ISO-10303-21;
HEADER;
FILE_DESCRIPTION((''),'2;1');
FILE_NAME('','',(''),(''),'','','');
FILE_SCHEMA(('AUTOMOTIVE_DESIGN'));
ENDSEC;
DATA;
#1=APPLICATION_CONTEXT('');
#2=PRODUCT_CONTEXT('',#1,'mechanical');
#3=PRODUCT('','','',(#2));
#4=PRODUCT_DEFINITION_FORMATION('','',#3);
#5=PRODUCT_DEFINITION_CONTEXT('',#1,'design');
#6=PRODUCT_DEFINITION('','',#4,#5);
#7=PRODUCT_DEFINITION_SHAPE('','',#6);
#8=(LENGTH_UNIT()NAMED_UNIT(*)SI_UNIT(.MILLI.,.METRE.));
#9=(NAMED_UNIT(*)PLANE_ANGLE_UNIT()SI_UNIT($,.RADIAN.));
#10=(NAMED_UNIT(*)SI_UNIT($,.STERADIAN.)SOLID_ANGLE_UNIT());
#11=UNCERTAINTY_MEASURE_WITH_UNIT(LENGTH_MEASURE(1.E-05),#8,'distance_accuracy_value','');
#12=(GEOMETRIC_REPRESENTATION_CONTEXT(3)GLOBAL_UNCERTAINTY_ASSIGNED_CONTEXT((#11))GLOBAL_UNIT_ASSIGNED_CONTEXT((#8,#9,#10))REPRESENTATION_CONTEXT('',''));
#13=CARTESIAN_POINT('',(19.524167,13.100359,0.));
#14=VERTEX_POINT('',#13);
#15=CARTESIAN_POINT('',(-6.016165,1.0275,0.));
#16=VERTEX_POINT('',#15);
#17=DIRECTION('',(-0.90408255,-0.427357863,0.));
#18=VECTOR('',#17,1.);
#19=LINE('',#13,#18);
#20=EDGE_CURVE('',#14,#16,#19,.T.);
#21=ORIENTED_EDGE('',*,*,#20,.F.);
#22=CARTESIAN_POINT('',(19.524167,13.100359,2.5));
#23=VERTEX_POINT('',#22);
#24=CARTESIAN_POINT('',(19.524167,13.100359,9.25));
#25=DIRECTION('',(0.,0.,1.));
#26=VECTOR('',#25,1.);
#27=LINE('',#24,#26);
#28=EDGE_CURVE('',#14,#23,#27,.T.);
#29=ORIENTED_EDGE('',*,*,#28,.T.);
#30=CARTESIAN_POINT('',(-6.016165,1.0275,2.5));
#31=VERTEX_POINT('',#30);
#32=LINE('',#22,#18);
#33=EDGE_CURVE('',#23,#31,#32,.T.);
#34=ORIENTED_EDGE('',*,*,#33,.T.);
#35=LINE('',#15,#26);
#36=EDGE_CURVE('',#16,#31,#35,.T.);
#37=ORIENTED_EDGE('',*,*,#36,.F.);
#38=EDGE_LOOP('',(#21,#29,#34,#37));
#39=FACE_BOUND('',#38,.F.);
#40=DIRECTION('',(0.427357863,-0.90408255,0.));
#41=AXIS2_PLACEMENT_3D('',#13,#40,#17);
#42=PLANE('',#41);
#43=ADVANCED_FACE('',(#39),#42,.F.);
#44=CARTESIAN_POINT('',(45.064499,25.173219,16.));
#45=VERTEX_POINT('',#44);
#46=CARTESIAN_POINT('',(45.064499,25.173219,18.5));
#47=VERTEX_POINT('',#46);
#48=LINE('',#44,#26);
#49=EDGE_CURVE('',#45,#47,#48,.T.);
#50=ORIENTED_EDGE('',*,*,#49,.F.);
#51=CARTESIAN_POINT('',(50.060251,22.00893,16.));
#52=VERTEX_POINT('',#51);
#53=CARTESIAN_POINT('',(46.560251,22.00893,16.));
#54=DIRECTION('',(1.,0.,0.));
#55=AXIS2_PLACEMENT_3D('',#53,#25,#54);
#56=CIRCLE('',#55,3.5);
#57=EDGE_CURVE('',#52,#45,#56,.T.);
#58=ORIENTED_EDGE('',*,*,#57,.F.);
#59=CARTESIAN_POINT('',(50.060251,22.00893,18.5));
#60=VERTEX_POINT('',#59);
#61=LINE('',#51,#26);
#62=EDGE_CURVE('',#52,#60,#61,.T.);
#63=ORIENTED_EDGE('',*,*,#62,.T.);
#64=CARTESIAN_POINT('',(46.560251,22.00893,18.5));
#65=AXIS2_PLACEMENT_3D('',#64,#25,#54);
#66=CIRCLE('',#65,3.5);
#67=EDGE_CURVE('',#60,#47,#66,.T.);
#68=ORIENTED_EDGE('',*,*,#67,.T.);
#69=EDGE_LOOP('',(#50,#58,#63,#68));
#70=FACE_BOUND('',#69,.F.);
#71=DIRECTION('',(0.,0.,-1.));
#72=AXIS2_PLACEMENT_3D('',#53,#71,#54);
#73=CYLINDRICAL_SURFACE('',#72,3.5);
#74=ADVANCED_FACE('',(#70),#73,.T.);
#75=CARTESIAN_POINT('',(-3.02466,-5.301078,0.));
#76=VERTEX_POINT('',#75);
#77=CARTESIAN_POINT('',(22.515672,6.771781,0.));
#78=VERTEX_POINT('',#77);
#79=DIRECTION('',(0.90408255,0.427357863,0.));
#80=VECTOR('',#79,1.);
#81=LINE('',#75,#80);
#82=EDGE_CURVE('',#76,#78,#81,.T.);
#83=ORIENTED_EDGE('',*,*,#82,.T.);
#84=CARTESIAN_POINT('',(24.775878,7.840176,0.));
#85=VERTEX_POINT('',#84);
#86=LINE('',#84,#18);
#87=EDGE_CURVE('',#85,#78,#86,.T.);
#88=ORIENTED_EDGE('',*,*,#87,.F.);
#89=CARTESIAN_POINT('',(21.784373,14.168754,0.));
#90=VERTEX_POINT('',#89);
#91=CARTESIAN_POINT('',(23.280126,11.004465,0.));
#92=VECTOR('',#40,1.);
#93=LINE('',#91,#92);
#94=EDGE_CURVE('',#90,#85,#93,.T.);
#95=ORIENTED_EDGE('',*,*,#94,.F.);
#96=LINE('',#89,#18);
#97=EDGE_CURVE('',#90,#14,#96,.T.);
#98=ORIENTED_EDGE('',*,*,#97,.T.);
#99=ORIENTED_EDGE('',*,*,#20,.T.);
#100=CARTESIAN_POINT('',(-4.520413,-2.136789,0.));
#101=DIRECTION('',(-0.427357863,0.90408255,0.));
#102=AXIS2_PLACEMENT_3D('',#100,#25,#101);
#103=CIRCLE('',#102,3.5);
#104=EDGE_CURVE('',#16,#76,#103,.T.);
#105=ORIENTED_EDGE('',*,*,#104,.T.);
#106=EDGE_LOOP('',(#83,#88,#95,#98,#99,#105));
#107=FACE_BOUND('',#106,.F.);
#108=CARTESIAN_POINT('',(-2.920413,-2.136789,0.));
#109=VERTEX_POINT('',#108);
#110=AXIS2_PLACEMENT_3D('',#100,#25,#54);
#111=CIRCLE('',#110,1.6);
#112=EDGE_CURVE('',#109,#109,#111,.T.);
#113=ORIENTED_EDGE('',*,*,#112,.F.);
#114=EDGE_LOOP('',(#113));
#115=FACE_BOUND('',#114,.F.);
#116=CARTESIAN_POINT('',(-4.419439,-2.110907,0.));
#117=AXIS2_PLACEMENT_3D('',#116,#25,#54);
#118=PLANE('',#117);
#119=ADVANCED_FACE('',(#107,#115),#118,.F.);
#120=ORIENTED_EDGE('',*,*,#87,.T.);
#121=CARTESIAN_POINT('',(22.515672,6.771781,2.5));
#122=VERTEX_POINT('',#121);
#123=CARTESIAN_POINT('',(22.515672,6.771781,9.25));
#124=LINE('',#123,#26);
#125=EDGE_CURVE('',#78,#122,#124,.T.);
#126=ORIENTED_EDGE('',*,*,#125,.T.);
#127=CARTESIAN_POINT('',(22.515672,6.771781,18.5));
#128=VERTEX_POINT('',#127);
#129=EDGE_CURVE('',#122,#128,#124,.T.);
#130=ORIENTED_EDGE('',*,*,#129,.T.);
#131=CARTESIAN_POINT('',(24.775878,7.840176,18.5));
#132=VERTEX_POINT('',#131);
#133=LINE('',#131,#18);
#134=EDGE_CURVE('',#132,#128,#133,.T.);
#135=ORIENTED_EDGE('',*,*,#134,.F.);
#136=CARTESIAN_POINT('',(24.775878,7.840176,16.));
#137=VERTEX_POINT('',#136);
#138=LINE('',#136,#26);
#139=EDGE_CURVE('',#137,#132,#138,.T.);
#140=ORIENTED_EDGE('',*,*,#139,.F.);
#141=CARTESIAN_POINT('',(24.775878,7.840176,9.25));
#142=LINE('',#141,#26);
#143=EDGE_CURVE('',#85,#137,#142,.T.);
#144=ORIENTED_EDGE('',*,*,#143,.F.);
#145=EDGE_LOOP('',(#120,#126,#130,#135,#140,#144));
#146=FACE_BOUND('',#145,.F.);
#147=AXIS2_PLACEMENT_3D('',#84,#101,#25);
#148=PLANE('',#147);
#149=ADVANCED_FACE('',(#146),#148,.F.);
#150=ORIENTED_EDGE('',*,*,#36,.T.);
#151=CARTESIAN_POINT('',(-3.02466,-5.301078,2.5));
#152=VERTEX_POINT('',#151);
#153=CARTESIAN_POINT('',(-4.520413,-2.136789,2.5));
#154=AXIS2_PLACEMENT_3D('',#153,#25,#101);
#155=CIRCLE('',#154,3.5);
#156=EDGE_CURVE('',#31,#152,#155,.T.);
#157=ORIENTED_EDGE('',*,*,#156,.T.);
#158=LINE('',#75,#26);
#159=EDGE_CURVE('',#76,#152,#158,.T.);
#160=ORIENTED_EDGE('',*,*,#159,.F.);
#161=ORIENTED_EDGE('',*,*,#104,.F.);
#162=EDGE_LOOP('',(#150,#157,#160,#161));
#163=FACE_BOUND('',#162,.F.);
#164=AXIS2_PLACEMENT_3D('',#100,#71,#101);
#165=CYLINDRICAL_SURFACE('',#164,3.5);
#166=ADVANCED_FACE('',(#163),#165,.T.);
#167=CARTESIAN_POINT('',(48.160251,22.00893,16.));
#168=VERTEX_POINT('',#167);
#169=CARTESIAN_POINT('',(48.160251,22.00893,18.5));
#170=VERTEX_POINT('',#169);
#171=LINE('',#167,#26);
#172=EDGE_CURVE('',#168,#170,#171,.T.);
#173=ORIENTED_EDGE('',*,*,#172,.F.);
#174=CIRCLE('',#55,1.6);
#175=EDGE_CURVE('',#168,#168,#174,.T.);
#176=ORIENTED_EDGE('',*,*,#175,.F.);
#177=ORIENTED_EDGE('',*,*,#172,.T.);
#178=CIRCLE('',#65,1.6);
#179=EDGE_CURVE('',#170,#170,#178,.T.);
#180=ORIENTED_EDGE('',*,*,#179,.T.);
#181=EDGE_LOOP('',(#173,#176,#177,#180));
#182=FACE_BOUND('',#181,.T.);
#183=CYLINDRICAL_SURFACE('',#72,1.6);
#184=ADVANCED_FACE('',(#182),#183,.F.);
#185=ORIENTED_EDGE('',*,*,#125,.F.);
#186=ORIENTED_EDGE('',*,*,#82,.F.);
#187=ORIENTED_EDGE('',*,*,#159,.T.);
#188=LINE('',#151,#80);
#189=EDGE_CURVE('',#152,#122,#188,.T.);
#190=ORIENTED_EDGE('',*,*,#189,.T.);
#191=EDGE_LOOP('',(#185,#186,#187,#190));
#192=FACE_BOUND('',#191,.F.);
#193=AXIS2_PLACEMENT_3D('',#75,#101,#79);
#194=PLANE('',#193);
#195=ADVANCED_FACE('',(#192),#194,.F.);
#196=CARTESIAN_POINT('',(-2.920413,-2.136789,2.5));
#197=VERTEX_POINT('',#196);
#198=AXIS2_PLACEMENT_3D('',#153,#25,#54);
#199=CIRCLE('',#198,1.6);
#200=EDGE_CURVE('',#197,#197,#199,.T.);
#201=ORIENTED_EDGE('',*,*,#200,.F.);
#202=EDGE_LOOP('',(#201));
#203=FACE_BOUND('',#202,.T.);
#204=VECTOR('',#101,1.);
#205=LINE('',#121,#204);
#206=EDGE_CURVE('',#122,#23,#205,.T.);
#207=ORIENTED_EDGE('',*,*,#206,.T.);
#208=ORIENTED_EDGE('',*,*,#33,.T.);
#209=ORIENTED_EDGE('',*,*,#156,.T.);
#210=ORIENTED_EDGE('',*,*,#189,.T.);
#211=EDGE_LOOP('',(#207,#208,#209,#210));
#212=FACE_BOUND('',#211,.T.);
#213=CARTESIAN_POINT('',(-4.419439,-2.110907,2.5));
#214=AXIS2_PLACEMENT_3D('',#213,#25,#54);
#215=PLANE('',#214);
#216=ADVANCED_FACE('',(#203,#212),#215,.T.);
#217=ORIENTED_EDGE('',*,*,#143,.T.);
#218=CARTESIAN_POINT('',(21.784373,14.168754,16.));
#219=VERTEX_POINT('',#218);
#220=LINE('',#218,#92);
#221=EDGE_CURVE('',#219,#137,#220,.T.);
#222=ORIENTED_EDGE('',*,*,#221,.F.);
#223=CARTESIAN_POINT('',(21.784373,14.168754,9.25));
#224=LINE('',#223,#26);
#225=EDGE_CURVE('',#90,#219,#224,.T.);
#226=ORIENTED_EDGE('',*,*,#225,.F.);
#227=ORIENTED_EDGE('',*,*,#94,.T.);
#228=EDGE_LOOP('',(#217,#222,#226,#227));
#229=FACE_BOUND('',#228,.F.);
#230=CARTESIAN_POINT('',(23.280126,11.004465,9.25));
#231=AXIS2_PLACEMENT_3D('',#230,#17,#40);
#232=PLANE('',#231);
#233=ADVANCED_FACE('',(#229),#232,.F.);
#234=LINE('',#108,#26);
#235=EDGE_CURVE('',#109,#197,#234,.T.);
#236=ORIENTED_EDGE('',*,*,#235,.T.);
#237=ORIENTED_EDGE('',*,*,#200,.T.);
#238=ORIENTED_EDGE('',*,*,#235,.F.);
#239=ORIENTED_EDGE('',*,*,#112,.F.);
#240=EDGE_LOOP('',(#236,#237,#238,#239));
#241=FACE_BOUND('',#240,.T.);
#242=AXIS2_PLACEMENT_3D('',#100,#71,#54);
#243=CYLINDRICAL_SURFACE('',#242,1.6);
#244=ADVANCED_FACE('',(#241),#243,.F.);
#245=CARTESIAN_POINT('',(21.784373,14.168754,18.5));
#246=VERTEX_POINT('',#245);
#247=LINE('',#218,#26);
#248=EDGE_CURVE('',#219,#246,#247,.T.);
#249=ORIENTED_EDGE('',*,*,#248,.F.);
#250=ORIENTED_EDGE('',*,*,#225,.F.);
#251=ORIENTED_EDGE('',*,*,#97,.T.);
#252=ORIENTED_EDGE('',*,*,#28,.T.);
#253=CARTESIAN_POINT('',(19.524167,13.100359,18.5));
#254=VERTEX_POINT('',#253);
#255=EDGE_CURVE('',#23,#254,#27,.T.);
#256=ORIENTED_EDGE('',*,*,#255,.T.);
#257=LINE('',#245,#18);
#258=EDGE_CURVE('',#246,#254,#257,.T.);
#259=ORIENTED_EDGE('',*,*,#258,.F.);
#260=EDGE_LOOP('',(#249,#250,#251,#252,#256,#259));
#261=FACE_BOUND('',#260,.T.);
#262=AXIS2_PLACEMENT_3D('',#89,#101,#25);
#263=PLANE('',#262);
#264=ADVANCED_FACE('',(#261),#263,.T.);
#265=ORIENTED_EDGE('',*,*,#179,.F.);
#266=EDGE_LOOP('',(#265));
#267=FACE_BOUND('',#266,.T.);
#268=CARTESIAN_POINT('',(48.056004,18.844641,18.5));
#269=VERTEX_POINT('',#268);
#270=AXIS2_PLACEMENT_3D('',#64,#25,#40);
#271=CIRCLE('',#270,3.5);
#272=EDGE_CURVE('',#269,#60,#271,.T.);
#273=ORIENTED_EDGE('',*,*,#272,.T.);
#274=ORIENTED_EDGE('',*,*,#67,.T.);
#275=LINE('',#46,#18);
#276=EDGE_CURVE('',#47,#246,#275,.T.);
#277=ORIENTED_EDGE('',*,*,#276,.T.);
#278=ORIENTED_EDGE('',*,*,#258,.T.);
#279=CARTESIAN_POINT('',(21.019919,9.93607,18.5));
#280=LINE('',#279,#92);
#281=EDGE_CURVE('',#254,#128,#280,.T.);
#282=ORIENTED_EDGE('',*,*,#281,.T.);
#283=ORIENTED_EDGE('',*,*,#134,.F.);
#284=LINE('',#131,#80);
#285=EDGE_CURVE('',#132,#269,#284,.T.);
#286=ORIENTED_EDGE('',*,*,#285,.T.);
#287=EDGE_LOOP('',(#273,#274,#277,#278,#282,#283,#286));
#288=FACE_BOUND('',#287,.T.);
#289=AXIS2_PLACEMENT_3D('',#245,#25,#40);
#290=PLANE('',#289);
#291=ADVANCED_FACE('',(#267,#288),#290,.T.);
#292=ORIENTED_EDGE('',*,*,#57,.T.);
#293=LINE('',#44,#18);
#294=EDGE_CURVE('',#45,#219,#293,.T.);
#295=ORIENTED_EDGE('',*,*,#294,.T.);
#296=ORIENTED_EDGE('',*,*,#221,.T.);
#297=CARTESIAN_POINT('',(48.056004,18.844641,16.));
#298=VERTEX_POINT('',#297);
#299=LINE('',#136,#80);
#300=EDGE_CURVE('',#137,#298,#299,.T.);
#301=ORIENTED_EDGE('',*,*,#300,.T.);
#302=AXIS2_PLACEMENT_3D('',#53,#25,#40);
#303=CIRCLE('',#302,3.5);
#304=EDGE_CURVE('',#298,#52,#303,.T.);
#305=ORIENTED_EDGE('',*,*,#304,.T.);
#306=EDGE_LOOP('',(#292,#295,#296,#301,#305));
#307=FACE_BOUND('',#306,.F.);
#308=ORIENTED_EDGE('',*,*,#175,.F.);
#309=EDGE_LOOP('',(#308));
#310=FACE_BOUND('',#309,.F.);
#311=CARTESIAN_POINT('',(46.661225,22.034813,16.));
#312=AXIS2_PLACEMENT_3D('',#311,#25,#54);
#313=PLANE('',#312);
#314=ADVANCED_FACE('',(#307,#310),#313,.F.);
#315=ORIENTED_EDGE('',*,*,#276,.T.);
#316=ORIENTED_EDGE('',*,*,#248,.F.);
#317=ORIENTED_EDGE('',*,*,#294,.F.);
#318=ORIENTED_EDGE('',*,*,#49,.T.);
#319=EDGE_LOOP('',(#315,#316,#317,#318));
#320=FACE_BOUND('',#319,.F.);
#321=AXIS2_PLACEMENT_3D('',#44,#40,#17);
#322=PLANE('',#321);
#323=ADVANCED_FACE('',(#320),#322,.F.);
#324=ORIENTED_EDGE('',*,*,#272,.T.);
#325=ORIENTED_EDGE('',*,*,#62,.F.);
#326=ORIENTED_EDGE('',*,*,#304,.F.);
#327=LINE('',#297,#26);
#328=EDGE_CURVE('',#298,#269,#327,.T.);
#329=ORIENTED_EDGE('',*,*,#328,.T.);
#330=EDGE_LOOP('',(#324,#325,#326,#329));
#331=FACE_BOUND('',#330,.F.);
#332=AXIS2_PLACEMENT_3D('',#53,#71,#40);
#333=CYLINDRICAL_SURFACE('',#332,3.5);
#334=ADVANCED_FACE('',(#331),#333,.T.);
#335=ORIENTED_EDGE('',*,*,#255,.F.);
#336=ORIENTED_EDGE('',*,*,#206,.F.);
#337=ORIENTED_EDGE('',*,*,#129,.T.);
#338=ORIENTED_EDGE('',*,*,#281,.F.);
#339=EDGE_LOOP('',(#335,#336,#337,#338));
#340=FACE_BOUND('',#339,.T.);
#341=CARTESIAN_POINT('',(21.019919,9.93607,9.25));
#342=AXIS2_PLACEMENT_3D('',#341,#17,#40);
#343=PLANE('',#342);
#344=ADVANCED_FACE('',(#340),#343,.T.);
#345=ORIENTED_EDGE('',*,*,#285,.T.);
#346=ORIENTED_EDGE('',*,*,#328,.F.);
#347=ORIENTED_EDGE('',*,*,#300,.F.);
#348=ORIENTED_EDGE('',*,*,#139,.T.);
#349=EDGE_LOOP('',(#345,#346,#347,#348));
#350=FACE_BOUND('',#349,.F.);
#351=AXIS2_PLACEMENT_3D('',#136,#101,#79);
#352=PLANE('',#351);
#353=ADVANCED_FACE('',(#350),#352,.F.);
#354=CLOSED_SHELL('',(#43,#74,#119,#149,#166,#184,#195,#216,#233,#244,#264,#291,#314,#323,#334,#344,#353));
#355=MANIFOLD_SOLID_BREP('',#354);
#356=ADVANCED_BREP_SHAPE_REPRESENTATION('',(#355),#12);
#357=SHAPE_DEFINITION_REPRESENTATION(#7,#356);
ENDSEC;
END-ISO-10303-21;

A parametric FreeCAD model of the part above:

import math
import FreeCAD as App
import Part
import Sketcher
from FreeCAD import Vector
Q = App.Units.Quantity


def add_polygon(sketch, points):
    """Adds a closed chain of lines whose ends are joined by coincident constraints."""
    first, n = sketch.GeometryCount, len(points)
    for a, b in zip(points, points[1:] + points[:1]):
        sketch.addGeometry(Part.LineSegment(App.Vector(*a, 0), App.Vector(*b, 0)), False)
    for i in range(n):
        sketch.addConstraint(Sketcher.Constraint("Coincident", first + i, 2, first + (i + 1) % n, 1))

doc = App.newDocument("Part")
body = doc.addObject("PartDesign::Body", "Body")

# Sketch on XY plane
sketch1 = body.newObject("Sketcher::SketchObject", "Sketch")
sketch1.AttachmentSupport = (doc.getObject("XY_Plane"), [""])
sketch1.MapMode = "FlatFace"
sketch1.AttachmentOffset = App.Placement(Vector(0, 0, 16), App.Rotation())
sketch1.addGeometry(Part.ArcOfCircle(Part.Circle(Vector(46.6, 22, 0), Vector(0, 0, 1), 3.5), math.radians(-65), math.radians(0)), False)
sketch1.addGeometry(Part.ArcOfCircle(Part.Circle(Vector(46.6, 22, 0), Vector(0, 0, 1), 3.5), math.radians(0), math.radians(115)), False)
sketch1.addGeometry(Part.LineSegment(Vector(45.1, 25.2, 0), Vector(21.8, 14.2, 0)), False)
sketch1.addGeometry(Part.LineSegment(Vector(21.8, 14.2, 0), Vector(24.8, 7.8, 0)), False)
sketch1.addGeometry(Part.LineSegment(Vector(24.8, 7.8, 0), Vector(48.1, 18.8, 0)), False)
sketch1.addGeometry(Part.Circle(Vector(46.6, 22, 0), Vector(0, 0, 1), 1.6), False)
sketch1.addConstraint(Sketcher.Constraint("Tangent", 0, 2, 1, 1))
sketch1.addConstraint(Sketcher.Constraint("Tangent", 1, 2, 2, 1))
sketch1.addConstraint(Sketcher.Constraint("Coincident", 2, 2, 3, 1))
sketch1.addConstraint(Sketcher.Constraint("Coincident", 3, 2, 4, 1))
sketch1.addConstraint(Sketcher.Constraint("Tangent", 4, 2, 0, 1))
sketch1.addConstraint(Sketcher.Constraint("Coincident", 5, 3, 0, 3))
sketch1.addConstraint(Sketcher.Constraint("Equal", 0, 1))
sketch1.addConstraint(Sketcher.Constraint("Perpendicular", 2, 3))
sketch1.addConstraint(Sketcher.Constraint("Perpendicular", 3, 4))
sketch1.addConstraint(Sketcher.Constraint("Horizontal", 5, 3, 0, 2))
sketch1.addConstraint(Sketcher.Constraint("Diameter", 5, Q("3.2 mm")))
sketch1.addConstraint(Sketcher.Constraint("Radius", 0, Q("3.5 mm")))
sketch1.addConstraint(Sketcher.Constraint("Angle", 2, Q("-154.7 deg")))
sketch1.addConstraint(Sketcher.Constraint("Distance", 2, Q("25.75 mm")))
sketch1.addConstraint(Sketcher.Constraint("DistanceX", -1, 1, 1, 2, Q("45.064499 mm")))
sketch1.addConstraint(Sketcher.Constraint("DistanceY", -1, 1, 0, 3, Q("22.00893 mm")))
pad1 = body.newObject("PartDesign::Pad", "Pad")
pad1.Profile = sketch1
pad1.Length = 2.5

# Sketch on an angled plane
sketch2 = body.newObject("Sketcher::SketchObject", "Sketch001")
sketch2.Placement = App.Placement(Vector(23.280126, 11.004465, 0), App.Rotation(Vector(0.427357863, -0.90408255, 0), Vector(0, 0, 1), Vector(-0.90408255, -0.427357863, 0), "ZXY"))
add_polygon(sketch2, [(-4, 19), (-4, 0), (4, 0), (4, 19)])  # lines 0-3
sketch2.addConstraint(Sketcher.Constraint("Vertical", 0))
sketch2.addConstraint(Sketcher.Constraint("Horizontal", 1))
sketch2.addConstraint(Sketcher.Constraint("Vertical", 2))
sketch2.addConstraint(Sketcher.Constraint("Horizontal", 3))
sketch2.addConstraint(Sketcher.Constraint("Symmetric", 0, 2, 1, 2, -1, 1))
sketch2.addConstraint(Sketcher.Constraint("DistanceX", 1, 1, 1, 2, Q("7 mm")))
sketch2.addConstraint(Sketcher.Constraint("DistanceY", 0, 2, 0, 1, Q("18.5 mm")))
pad2 = body.newObject("PartDesign::Pad", "Pad001")
pad2.Profile = sketch2
pad2.Length = 2.5

# Sketch on XY plane
sketch3 = body.newObject("Sketcher::SketchObject", "Sketch002")
sketch3.AttachmentSupport = (doc.getObject("XY_Plane"), [""])
sketch3.MapMode = "FlatFace"
sketch3.addGeometry(Part.ArcOfCircle(Part.Circle(Vector(-4.5, -2.1, 0), Vector(0, 0, 1), 3.5), math.radians(115), math.radians(295)), False)
sketch3.addGeometry(Part.LineSegment(Vector(-3, -5.3, 0), Vector(22.5, 6.8, 0)), False)
sketch3.addGeometry(Part.LineSegment(Vector(22.5, 6.8, 0), Vector(19.5, 13.1, 0)), False)
sketch3.addGeometry(Part.LineSegment(Vector(19.5, 13.1, 0), Vector(-6, 1, 0)), False)
sketch3.addGeometry(Part.Circle(Vector(-4.5, -2.1, 0), Vector(0, 0, 1), 1.6), False)
sketch3.addConstraint(Sketcher.Constraint("Tangent", 0, 2, 1, 1))
sketch3.addConstraint(Sketcher.Constraint("Coincident", 1, 2, 2, 1))
sketch3.addConstraint(Sketcher.Constraint("Coincident", 2, 2, 3, 1))
sketch3.addConstraint(Sketcher.Constraint("Tangent", 3, 2, 0, 1))
sketch3.addConstraint(Sketcher.Constraint("Coincident", 4, 3, 0, 3))
sketch3.addConstraint(Sketcher.Constraint("Perpendicular", 1, 2))
sketch3.addConstraint(Sketcher.Constraint("Perpendicular", 2, 3))
sketch3.addConstraint(Sketcher.Constraint("Diameter", 4, Q("3.2 mm")))
sketch3.addConstraint(Sketcher.Constraint("Radius", 0, Q("3.5 mm")))
sketch3.addConstraint(Sketcher.Constraint("Angle", 1, Q("25.3 deg")))
sketch3.addConstraint(Sketcher.Constraint("Distance", 1, Q("28.25 mm")))
sketch3.addConstraint(Sketcher.Constraint("DistanceY", -1, 1, 3, 2, Q("1.0275 mm")))
sketch3.addConstraint(Sketcher.Constraint("DistanceX", 0, 2, -1, 1, Q("3.02466 mm")))
pad3 = body.newObject("PartDesign::Pad", "Pad002")
pad3.Profile = sketch3
pad3.Length = 2.5

doc.recompute()
